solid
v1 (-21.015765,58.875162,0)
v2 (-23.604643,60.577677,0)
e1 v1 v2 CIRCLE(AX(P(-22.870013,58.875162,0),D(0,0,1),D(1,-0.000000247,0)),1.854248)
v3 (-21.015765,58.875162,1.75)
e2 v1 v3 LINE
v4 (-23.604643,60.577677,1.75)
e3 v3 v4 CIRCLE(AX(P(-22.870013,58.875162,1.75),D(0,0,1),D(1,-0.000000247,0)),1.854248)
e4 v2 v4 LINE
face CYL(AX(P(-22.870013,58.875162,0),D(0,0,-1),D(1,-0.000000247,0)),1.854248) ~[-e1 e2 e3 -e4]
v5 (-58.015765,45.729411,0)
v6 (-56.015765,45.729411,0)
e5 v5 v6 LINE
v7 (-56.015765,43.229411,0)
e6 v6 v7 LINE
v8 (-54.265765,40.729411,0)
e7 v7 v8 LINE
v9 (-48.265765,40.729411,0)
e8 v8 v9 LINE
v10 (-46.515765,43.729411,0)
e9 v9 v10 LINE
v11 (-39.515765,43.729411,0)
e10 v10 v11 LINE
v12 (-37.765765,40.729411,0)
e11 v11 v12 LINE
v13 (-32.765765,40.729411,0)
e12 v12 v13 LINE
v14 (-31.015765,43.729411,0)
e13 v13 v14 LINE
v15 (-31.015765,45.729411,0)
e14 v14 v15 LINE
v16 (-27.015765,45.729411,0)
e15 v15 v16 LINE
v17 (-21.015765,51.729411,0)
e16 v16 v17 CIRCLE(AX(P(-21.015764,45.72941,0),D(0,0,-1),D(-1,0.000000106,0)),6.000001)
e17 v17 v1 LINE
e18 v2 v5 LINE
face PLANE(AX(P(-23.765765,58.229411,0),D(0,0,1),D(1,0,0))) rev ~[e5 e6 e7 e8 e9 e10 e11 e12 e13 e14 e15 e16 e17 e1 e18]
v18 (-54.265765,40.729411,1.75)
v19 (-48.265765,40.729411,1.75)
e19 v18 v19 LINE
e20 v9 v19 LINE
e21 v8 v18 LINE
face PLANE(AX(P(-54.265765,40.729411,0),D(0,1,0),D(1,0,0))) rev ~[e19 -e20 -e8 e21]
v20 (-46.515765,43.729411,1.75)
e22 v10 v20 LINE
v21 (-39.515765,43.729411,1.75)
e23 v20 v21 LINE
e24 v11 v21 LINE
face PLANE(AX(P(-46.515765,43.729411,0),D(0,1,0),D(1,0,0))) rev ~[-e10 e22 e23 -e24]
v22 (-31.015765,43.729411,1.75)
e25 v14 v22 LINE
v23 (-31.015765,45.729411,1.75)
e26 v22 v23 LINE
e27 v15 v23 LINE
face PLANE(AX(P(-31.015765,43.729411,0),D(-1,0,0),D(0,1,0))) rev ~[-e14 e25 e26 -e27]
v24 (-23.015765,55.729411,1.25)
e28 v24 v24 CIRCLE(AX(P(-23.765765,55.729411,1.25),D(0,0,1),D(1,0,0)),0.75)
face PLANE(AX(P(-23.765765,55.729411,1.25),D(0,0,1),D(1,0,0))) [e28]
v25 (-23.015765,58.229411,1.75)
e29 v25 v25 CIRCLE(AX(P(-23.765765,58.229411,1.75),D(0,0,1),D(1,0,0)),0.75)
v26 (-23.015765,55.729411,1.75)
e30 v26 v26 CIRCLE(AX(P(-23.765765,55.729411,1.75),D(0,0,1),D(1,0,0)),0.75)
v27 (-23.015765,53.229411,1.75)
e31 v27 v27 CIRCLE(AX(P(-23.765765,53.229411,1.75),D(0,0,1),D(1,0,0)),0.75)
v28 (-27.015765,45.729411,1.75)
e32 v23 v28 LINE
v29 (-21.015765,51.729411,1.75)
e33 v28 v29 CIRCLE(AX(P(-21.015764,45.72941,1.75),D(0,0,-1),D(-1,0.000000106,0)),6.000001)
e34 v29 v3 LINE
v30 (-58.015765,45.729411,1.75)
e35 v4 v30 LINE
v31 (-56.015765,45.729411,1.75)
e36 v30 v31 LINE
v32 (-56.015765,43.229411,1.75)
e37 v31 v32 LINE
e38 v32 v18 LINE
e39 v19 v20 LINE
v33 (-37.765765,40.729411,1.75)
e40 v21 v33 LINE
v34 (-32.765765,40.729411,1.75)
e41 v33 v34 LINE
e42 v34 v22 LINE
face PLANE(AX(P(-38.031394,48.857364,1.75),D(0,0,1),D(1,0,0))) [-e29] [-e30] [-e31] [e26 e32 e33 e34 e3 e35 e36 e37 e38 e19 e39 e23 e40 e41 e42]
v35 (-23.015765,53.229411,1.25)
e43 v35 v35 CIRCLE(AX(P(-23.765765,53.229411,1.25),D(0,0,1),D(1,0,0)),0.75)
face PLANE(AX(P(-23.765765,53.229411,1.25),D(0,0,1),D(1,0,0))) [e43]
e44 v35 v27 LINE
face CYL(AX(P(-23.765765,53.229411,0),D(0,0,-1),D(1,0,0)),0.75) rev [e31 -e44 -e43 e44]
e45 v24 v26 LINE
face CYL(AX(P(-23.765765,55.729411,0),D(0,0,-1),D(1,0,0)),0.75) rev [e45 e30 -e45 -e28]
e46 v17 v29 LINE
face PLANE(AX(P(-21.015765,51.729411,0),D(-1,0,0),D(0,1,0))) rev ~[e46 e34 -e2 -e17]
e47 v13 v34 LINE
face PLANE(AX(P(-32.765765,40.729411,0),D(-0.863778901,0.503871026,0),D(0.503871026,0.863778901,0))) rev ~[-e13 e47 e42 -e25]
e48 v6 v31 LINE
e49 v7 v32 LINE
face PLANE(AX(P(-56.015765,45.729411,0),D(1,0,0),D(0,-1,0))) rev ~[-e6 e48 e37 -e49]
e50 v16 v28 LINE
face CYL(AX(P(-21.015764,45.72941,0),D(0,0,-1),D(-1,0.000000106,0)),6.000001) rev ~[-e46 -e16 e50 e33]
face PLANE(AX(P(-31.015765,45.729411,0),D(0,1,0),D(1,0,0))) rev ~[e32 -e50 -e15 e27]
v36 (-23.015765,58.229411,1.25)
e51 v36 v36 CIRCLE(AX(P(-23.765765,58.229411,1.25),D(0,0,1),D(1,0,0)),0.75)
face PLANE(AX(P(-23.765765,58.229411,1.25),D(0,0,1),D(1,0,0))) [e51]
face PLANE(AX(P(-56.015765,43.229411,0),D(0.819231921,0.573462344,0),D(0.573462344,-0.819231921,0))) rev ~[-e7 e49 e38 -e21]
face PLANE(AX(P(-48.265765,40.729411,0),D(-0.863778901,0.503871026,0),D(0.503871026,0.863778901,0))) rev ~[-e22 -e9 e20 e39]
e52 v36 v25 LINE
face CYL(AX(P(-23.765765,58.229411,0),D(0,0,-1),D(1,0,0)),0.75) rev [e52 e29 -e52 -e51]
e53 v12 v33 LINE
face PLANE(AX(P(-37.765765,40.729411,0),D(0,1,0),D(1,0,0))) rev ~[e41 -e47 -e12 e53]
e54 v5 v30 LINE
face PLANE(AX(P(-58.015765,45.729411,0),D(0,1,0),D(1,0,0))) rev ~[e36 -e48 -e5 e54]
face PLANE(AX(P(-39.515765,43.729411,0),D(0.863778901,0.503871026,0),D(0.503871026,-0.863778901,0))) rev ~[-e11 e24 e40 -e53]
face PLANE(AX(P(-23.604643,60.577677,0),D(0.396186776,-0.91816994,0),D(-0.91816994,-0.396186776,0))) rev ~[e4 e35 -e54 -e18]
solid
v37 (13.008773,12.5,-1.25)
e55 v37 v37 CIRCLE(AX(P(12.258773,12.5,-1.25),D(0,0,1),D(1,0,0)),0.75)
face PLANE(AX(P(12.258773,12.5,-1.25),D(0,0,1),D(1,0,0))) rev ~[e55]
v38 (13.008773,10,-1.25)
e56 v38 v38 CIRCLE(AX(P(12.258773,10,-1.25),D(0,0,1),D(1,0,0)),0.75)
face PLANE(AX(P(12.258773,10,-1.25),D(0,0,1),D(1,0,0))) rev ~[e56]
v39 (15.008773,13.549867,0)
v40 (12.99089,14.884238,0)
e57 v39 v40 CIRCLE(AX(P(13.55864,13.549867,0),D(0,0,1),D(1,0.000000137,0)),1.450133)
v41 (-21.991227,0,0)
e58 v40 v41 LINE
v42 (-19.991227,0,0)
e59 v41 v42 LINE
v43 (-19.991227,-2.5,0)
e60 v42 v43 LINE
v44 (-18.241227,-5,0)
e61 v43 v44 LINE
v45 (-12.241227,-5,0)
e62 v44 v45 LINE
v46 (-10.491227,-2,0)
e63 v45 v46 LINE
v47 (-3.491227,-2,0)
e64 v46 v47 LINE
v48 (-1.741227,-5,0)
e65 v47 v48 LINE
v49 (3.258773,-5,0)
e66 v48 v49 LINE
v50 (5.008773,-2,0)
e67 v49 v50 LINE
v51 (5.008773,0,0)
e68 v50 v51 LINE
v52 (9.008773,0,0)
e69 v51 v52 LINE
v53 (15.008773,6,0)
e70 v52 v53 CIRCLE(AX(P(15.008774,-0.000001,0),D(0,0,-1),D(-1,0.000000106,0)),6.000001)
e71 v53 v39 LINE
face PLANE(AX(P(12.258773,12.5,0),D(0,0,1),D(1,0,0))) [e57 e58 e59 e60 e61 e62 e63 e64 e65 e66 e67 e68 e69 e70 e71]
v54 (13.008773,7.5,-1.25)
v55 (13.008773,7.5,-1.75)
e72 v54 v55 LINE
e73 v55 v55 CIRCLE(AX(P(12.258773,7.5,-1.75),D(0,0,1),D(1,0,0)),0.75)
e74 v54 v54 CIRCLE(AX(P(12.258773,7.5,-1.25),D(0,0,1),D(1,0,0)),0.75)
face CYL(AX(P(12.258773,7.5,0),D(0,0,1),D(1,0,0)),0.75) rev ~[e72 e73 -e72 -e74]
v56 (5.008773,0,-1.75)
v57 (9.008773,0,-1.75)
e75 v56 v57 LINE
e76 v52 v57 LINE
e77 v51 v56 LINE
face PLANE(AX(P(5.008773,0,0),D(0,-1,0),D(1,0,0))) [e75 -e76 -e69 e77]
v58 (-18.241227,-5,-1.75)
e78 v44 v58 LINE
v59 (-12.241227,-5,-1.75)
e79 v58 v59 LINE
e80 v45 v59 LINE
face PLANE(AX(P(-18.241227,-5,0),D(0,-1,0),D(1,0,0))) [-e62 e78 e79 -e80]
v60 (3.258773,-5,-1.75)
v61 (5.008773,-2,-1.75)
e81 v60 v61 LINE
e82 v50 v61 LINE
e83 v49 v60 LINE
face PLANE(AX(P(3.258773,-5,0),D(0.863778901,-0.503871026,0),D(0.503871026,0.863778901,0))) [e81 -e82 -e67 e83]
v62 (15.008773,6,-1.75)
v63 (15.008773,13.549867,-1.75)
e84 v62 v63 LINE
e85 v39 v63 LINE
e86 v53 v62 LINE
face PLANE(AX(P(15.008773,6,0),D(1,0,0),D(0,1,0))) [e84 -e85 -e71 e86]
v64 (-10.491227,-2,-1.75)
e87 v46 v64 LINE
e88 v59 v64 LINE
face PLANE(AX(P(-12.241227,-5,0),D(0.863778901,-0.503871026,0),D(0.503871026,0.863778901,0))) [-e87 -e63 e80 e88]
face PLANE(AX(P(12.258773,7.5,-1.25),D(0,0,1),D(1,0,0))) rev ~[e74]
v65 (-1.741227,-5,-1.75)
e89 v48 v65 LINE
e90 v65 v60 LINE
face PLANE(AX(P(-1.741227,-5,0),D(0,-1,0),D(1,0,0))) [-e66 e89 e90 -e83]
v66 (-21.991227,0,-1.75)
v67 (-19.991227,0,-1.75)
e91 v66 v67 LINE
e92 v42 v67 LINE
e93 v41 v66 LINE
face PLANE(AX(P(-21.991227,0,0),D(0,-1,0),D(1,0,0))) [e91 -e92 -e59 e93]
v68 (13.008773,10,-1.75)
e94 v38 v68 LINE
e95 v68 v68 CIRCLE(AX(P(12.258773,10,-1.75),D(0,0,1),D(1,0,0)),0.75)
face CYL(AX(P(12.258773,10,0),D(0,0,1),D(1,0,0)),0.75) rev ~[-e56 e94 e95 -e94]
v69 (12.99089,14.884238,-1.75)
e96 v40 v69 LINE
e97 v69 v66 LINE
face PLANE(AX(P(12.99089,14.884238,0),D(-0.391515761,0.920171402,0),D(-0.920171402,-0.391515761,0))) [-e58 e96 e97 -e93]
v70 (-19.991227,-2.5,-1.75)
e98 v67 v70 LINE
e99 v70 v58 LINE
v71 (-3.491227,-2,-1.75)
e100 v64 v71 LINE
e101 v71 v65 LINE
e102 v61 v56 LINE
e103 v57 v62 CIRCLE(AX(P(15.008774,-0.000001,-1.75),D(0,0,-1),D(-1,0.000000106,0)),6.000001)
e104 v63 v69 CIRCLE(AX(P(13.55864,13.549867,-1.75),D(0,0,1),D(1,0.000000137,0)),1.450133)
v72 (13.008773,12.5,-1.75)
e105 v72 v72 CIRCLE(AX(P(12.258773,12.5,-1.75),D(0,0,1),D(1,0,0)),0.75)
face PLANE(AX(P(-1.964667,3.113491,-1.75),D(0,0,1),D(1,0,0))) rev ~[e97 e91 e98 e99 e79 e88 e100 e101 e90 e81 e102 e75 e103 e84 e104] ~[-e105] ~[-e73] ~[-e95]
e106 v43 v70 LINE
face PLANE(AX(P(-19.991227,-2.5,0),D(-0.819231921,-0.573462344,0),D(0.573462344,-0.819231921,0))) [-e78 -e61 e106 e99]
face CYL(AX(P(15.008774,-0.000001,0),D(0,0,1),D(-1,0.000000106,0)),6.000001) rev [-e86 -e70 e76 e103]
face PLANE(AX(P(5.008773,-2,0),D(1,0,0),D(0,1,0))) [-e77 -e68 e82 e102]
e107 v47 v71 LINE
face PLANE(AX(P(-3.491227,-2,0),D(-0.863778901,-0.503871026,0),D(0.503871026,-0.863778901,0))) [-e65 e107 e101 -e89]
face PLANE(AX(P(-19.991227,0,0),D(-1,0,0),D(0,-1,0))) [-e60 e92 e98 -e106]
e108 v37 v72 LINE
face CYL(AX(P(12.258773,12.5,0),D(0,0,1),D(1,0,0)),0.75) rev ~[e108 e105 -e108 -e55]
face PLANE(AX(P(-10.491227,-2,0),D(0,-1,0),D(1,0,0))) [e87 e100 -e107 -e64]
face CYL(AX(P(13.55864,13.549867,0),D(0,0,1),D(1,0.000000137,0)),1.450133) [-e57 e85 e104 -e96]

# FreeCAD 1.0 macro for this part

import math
import FreeCAD as App
import Part
import Sketcher
from FreeCAD import Vector
Q = App.Units.Quantity

doc = App.newDocument("Part")
body = doc.addObject("PartDesign::Body", "Body")

sketch1 = body.newObject("Sketcher::SketchObject", "Sketch")
sketch1.AttachmentSupport = (doc.getObject("XY_Plane"), [""])
sketch1.MapMode = "FlatFace"
sketch1.addGeometry([
    Part.LineSegment(Vector(13, 14.9, 0), Vector(-22, 0, 0)),
    Part.LineSegment(Vector(-22, 0, 0), Vector(-20, 0, 0)),
    Part.LineSegment(Vector(-20, 0, 0), Vector(-20, -2.5, 0)),
    Part.LineSegment(Vector(-20, -2.5, 0), Vector(-18.2, -5, 0)),
    Part.LineSegment(Vector(-18.2, -5, 0), Vector(-12.2, -5, 0)),
    Part.LineSegment(Vector(-12.2, -5, 0), Vector(-10.5, -2, 0)),
    Part.LineSegment(Vector(-10.5, -2, 0), Vector(-3.5, -2, 0)),
    Part.LineSegment(Vector(-3.5, -2, 0), Vector(-1.7, -5, 0)),
    Part.LineSegment(Vector(-1.7, -5, 0), Vector(3.3, -5, 0)),
    Part.LineSegment(Vector(3.3, -5, 0), Vector(5, -2, 0)),
    Part.LineSegment(Vector(5, -2, 0), Vector(5, 0, 0)),
    Part.LineSegment(Vector(5, 0, 0), Vector(9, 0, 0)),
    Part.ArcOfCircle(Part.Circle(Vector(15, 0, 0), Vector(0, 0, 1), 6), math.radians(90), math.radians(180)),
    Part.LineSegment(Vector(15, 6, 0), Vector(15, 13.5, 0)),
    Part.ArcOfCircle(Part.Circle(Vector(13.6, 13.5, 0), Vector(0, 0, 1), 1.5), math.radians(0), math.radians(113)),
    Part.Circle(Vector(12.3, 7.5, 0), Vector(0, 0, 1), 0.8),
    Part.Circle(Vector(12.3, 10, 0), Vector(0, 0, 1), 0.8),
    Part.Circle(Vector(12.3, 12.5, 0), Vector(0, 0, 1), 0.8),
], False)
sketch1.addConstraint([
    Sketcher.Constraint("Coincident", 0, 2, 1, 1),
    Sketcher.Constraint("Coincident", 1, 2, 2, 1),
    Sketcher.Constraint("Coincident", 2, 2, 3, 1),
    Sketcher.Constraint("Coincident", 3, 2, 4, 1),
    Sketcher.Constraint("Coincident", 4, 2, 5, 1),
    Sketcher.Constraint("Coincident", 5, 2, 6, 1),
    Sketcher.Constraint("Coincident", 6, 2, 7, 1),
    Sketcher.Constraint("Coincident", 7, 2, 8, 1),
    Sketcher.Constraint("Coincident", 8, 2, 9, 1),
    Sketcher.Constraint("Coincident", 9, 2, 10, 1),
    Sketcher.Constraint("Coincident", 10, 2, 11, 1),
    Sketcher.Constraint("Coincident", 11, 2, 12, 2),
    Sketcher.Constraint("Coincident", 12, 1, 13, 1),
    Sketcher.Constraint("Tangent", 13, 2, 14, 1),
    Sketcher.Constraint("Tangent", 14, 2, 0, 1),
    Sketcher.Constraint("Horizontal", 1),
    Sketcher.Constraint("Vertical", 2),
    Sketcher.Constraint("Horizontal", 4),
    Sketcher.Constraint("Horizontal", 6),
    Sketcher.Constraint("Horizontal", 8),
    Sketcher.Constraint("Vertical", 10),
    Sketcher.Constraint("Horizontal", 11),
    Sketcher.Constraint("Vertical", 13),
    Sketcher.Constraint("Equal", 15, 16),
    Sketcher.Constraint("Equal", 16, 17),
    Sketcher.Constraint("PointOnObject", 12, 3, -1),
    Sketcher.Constraint("PointOnObject", 0, 2, -1),
    Sketcher.Constraint("PointOnObject", 10, 2, -1),
    Sketcher.Constraint("Parallel", 5, 9),
    Sketcher.Constraint("Horizontal", 4, 2, 7, 2),
    Sketcher.Constraint("Horizontal", 6, 2, 9, 2),
    Sketcher.Constraint("Vertical", 15, 3, 16, 3),
    Sketcher.Constraint("Vertical", 16, 3, 17, 3),
    Sketcher.Constraint("Equal", 1, 10),
    Sketcher.Constraint("Equal", 5, 7),
    Sketcher.Constraint("Radius", 12, Q("6.000001 mm")),
    Sketcher.Constraint("Diameter", 15, Q("1.5 mm")),
    Sketcher.Constraint("DistanceX", 1, 1, 1, 2, Q("2 mm")),
    Sketcher.Constraint("DistanceX", 4, 1, 4, 2, Q("6 mm")),
    Sketcher.Constraint("DistanceX", 6, 1, 6, 2, Q("7 mm")),
    Sketcher.Constraint("DistanceX", 8, 1, 8, 2, Q("5 mm")),
    Sketcher.Constraint("DistanceX", 11, 1, 11, 2, Q("4 mm")),
    Sketcher.Constraint("DistanceY", 2, 2, 2, 1, Q("2.5 mm")),
    Sketcher.Constraint("DistanceY", -1, 1, 16, 3, Q("10 mm")),
    Sketcher.Constraint("DistanceY", 3, 2, -1, 1, Q("5 mm")),
    Sketcher.Constraint("DistanceY", 15, 3, 17, 3, Q("5 mm")),
    Sketcher.Constraint("DistanceX", 0, 2, 12, 3, Q("37.000001 mm")),
    Sketcher.Constraint("DistanceY", 2, 2, 15, 3, Q("10 mm")),
    Sketcher.Constraint("DistanceX", 8, 2, 15, 3, Q("9 mm")),
    Sketcher.Constraint("DistanceX", 3, 2, 15, 3, Q("30.5 mm")),
    Sketcher.Constraint("DistanceX", 15, 3, 12, 1, Q("2.75 mm")),
    Sketcher.Constraint("Radius", 14, Q("1.450133 mm")),
    Sketcher.Constraint("DistanceY", 13, 1, 13, 2, Q("7.549867 mm")),
    Sketcher.Constraint("DistanceX", -1, 1, 14, 3, Q("13.55864 mm")),
])
pad1 = body.newObject("PartDesign::Pad", "Pad")
pad1.Profile = sketch1
pad1.Length = 1.75
pad1.Reversed = True

sketch2 = body.newObject("Sketcher::SketchObject", "Sketch001")
sketch2.AttachmentSupport = (doc.getObject("XY_Plane"), [""])
sketch2.MapMode = "FlatFace"
sketch2.addGeometry([
    Part.Circle(Vector(12.3, 12.5, 0), Vector(0, 0, 1), 0.8),
    Part.Circle(Vector(12.3, 10, 0), Vector(0, 0, 1), 0.8),
    Part.Circle(Vector(12.3, 7.5, 0), Vector(0, 0, 1), 0.8),
], False)
sketch2.addConstraint([
    Sketcher.Constraint("Equal", 0, 1),
    Sketcher.Constraint("Equal", 1, 2),
    Sketcher.Constraint("Vertical", 0, 3, 1, 3),
    Sketcher.Constraint("Vertical", 1, 3, 2, 3),
    Sketcher.Constraint("Diameter", 0, Q("1.5 mm")),
    Sketcher.Constraint("DistanceY", -1, 1, 1, 3, Q("10 mm")),
    Sketcher.Constraint("DistanceY", 2, 3, 0, 3, Q("5 mm")),
    Sketcher.Constraint("DistanceY", -1, 1, 0, 3, Q("12.5 mm")),
    Sketcher.Constraint("DistanceX", -1, 1, 0, 3, Q("12.258773 mm")),
])
pad2 = body.newObject("PartDesign::Pad", "Pad001")
pad2.Profile = sketch2
pad2.Length = 1.25
pad2.Reversed = True
body2 = doc.addObject("PartDesign::Body", "Body001")

sketch3 = body2.newObject("Sketcher::SketchObject", "Sketch002")
sketch3.AttachmentSupport = (doc.getObject("XY_Plane001"), [""])
sketch3.MapMode = "FlatFace"
sketch3.addGeometry([
    Part.LineSegment(Vector(-23.6, 60.6, 0), Vector(-58, 45.7, 0)),
    Part.LineSegment(Vector(-58, 45.7, 0), Vector(-56, 45.7, 0)),
    Part.LineSegment(Vector(-56, 45.7, 0), Vector(-56, 43.2, 0)),
    Part.LineSegment(Vector(-56, 43.2, 0), Vector(-54.3, 40.7, 0)),
    Part.LineSegment(Vector(-54.3, 40.7, 0), Vector(-48.3, 40.7, 0)),
    Part.LineSegment(Vector(-48.3, 40.7, 0), Vector(-46.5, 43.7, 0)),
    Part.LineSegment(Vector(-46.5, 43.7, 0), Vector(-39.5, 43.7, 0)),
    Part.LineSegment(Vector(-39.5, 43.7, 0), Vector(-37.8, 40.7, 0)),
    Part.LineSegment(Vector(-37.8, 40.7, 0), Vector(-32.8, 40.7, 0)),
    Part.LineSegment(Vector(-32.8, 40.7, 0), Vector(-31, 43.7, 0)),
    Part.LineSegment(Vector(-31, 43.7, 0), Vector(-31, 45.7, 0)),
    Part.LineSegment(Vector(-31, 45.7, 0), Vector(-27, 45.7, 0)),
    Part.ArcOfCircle(Part.Circle(Vector(-21, 45.7, 0), Vector(0, 0, 1), 6), math.radians(90), math.radians(180)),
    Part.LineSegment(Vector(-21, 51.7, 0), Vector(-21, 58.9, 0)),
    Part.ArcOfCircle(Part.Circle(Vector(-22.9, 58.9, 0), Vector(0, 0, 1), 1.9), math.radians(0), math.radians(113)),
    Part.Circle(Vector(-23.8, 53.2, 0), Vector(0, 0, 1), 0.8),
    Part.Circle(Vector(-23.8, 55.7, 0), Vector(0, 0, 1), 0.8),
    Part.Circle(Vector(-23.8, 58.2, 0), Vector(0, 0, 1), 0.8),
], False)
sketch3.addConstraint([
    Sketcher.Constraint("Coincident", 0, 2, 1, 1),
    Sketcher.Constraint("Coincident", 1, 2, 2, 1),
    Sketcher.Constraint("Coincident", 2, 2, 3, 1),
    Sketcher.Constraint("Coincident", 3, 2, 4, 1),
    Sketcher.Constraint("Coincident", 4, 2, 5, 1),
    Sketcher.Constraint("Coincident", 5, 2, 6, 1),
    Sketcher.Constraint("Coincident", 6, 2, 7, 1),
    Sketcher.Constraint("Coincident", 7, 2, 8, 1),
    Sketcher.Constraint("Coincident", 8, 2, 9, 1),
    Sketcher.Constraint("Coincident", 9, 2, 10, 1),
    Sketcher.Constraint("Coincident", 10, 2, 11, 1),
    Sketcher.Constraint("Coincident", 11, 2, 12, 2),
    Sketcher.Constraint("Coincident", 12, 1, 13, 1),
    Sketcher.Constraint("Tangent", 13, 2, 14, 1),
    Sketcher.Constraint("Tangent", 14, 2, 0, 1),
    Sketcher.Constraint("Horizontal", 1),
    Sketcher.Constraint("Vertical", 2),
    Sketcher.Constraint("Horizontal", 4),
    Sketcher.Constraint("Horizontal", 6),
    Sketcher.Constraint("Horizontal", 8),
    Sketcher.Constraint("Vertical", 10),
    Sketcher.Constraint("Horizontal", 11),
    Sketcher.Constraint("Vertical", 13),
    Sketcher.Constraint("Equal", 15, 16),
    Sketcher.Constraint("Equal", 16, 17),
    Sketcher.Constraint("Parallel", 5, 9),
    Sketcher.Constraint("Horizontal", 12, 3, 0, 2),
    Sketcher.Constraint("Horizontal", 4, 2, 7, 2),
    Sketcher.Constraint("Horizontal", 6, 2, 9, 2),
    Sketcher.Constraint("Horizontal", 1, 2, 10, 2),
    Sketcher.Constraint("Vertical", 15, 3, 16, 3),
    Sketcher.Constraint("Vertical", 16, 3, 17, 3),
    Sketcher.Constraint("Equal", 1, 10),
    Sketcher.Constraint("Equal", 5, 7),
    Sketcher.Constraint("Radius", 12, Q("6.000001 mm")),
    Sketcher.Constraint("Diameter", 15, Q("1.5 mm")),
    Sketcher.Constraint("DistanceX", 1, 1, 1, 2, Q("2 mm")),
    Sketcher.Constraint("DistanceX", 4, 1, 4, 2, Q("6 mm")),
    Sketcher.Constraint("DistanceX", 6, 1, 6, 2, Q("7 mm")),
    Sketcher.Constraint("DistanceX", 8, 1, 8, 2, Q("5 mm")),
    Sketcher.Constraint("DistanceX", 11, 1, 11, 2, Q("4 mm")),
    Sketcher.Constraint("DistanceY", 2, 2, 2, 1, Q("2.5 mm")),
    Sketcher.Constraint("DistanceY", 12, 3, 16, 3, Q("10.000001 mm")),
    Sketcher.Constraint("DistanceY", 15, 3, 17, 3, Q("5 mm")),
    Sketcher.Constraint("DistanceX", 0, 2, 12, 3, Q("37.000001 mm")),
    Sketcher.Constraint("DistanceY", 2, 2, 15, 3, Q("10 mm")),
    Sketcher.Constraint("DistanceY", 3, 2, 1, 2, Q("5 mm")),
    Sketcher.Constraint("DistanceX", 8, 2, 15, 3, Q("9 mm")),
    Sketcher.Constraint("Angle", 0, Q("-156.659989 deg")),
    Sketcher.Constraint("DistanceX", 3, 2, 15, 3, Q("30.5 mm")),
    Sketcher.Constraint("Radius", 14, Q("1.854248 mm")),
    Sketcher.Constraint("DistanceX", 15, 3, 12, 1, Q("2.75 mm")),
    Sketcher.Constraint("DistanceY", -1, 1, 12, 3, Q("45.72941 mm")),
    Sketcher.Constraint("DistanceX", 12, 3, -1, 1, Q("21.015764 mm")),
])
pad3 = body2.newObject("PartDesign::Pad", "Pad002")
pad3.Profile = sketch3
pad3.Length = 1.75

sketch4 = body2.newObject("Sketcher::SketchObject", "Sketch003")
sketch4.AttachmentSupport = (doc.getObject("XY_Plane001"), [""])
sketch4.MapMode = "FlatFace"
sketch4.addGeometry([
    Part.Circle(Vector(-23.8, 58.2, 0), Vector(0, 0, 1), 0.8),
    Part.Circle(Vector(-23.8, 55.7, 0), Vector(0, 0, 1), 0.8),
    Part.Circle(Vector(-23.8, 53.2, 0), Vector(0, 0, 1), 0.8),
], False)
sketch4.addConstraint([
    Sketcher.Constraint("Equal", 0, 1),
    Sketcher.Constraint("Equal", 1, 2),
    Sketcher.Constraint("Vertical", 0, 3, 1, 3),
    Sketcher.Constraint("Vertical", 1, 3, 2, 3),
    Sketcher.Constraint("Diameter", 0, Q("1.5 mm")),
    Sketcher.Constraint("DistanceY", 2, 3, 0, 3, Q("5 mm")),
    Sketcher.Constraint("DistanceY", 1, 3, 0, 3, Q("2.5 mm")),
    Sketcher.Constraint("DistanceY", -1, 1, 0, 3, Q("58.229411 mm")),
    Sketcher.Constraint("DistanceX", 0, 3, -1, 1, Q("23.765765 mm")),
])
pad4 = body2.newObject("PartDesign::Pad", "Pad003")
pad4.Profile = sketch4
pad4.Length = 1.25

doc.recompute()
